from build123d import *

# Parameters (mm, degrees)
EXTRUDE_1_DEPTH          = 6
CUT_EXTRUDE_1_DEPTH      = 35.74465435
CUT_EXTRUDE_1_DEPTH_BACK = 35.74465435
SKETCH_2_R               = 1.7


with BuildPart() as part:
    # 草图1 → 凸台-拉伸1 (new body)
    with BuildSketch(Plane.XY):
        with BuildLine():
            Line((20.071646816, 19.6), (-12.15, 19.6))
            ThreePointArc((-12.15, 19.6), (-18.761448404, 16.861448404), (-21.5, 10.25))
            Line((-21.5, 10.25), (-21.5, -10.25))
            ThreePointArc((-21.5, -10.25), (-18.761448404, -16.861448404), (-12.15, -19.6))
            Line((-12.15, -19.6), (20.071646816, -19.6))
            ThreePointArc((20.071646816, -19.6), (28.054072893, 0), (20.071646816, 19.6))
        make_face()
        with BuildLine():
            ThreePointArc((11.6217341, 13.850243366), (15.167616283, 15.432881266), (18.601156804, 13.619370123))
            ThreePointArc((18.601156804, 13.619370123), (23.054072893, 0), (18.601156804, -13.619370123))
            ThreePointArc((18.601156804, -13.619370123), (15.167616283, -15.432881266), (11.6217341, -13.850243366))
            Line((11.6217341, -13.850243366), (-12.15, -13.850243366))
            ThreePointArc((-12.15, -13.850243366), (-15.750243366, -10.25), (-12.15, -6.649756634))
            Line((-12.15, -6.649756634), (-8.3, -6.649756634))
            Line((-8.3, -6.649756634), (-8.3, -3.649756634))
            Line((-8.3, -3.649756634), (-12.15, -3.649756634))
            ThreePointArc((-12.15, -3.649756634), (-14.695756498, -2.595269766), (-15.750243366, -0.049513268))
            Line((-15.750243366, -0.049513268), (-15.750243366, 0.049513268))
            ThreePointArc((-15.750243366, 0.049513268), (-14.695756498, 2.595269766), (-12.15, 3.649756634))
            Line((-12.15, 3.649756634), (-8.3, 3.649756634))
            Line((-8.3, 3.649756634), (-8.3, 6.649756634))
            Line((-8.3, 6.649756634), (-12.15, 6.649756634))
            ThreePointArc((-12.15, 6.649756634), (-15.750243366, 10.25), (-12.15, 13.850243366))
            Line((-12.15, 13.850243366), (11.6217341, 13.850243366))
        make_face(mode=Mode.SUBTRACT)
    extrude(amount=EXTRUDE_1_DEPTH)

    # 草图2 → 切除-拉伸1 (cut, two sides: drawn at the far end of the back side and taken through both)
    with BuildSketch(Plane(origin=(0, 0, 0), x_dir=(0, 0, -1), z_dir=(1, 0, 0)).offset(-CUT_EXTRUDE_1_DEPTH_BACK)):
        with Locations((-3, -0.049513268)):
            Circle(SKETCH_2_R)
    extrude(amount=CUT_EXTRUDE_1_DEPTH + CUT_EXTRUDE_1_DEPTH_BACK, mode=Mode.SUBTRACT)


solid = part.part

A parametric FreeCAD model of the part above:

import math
import FreeCAD as App
import Part
import Sketcher

V = App.Vector
Q = App.Units.Quantity

doc = App.newDocument("Part")
params = doc.addObject("Spreadsheet::Sheet", "Params")
for row, (alias, value) in enumerate([
    ("sketch1_height", "3 mm"),
    ("sketch1_radius", "9.35 mm"),
    ("sketch1_height2", "20.5 mm"),
    ("sketch1_width", "3.85 mm"),
    ("pad1_length", "6 mm"),
    ("sketch2_diameter", "3.4 mm"),
], start=1):
    params.set(f"A{row}", alias)
    params.set(f"B{row}", "=" + value)
    params.setAlias(f"B{row}", alias)

body = doc.addObject("PartDesign::Body", "Body")

# Sketch on XY plane
sketch1 = doc.addObject("Sketcher::SketchObject", "Sketch")
body.addObject(sketch1)
sketch1.AttachmentSupport = (doc.XY_Plane, [""])
sketch1.MapMode = "FlatFace"
sketch1.addGeometry(Part.LineSegment(V(20.07, 19.6, 0), V(-12.15, 19.6, 0)), False)
sketch1.addGeometry(Part.ArcOfCircle(Part.Circle(V(-12.15, 10.25, 0), V(0, 0, 1), 9.35), math.radians(90), math.radians(180)), False)
sketch1.addGeometry(Part.LineSegment(V(-21.5, 10.25, 0), V(-21.5, -10.25, 0)), False)
sketch1.addGeometry(Part.ArcOfCircle(Part.Circle(V(-12.15, -10.25, 0), V(0, 0, 1), 9.35), math.radians(180), math.radians(270)), False)
sketch1.addGeometry(Part.LineSegment(V(-12.15, -19.6, 0), V(20.07, -19.6, 0)), False)
sketch1.addGeometry(Part.ArcOfCircle(Part.Circle(V(0, 0, 0), V(0, 0, 1), 28.05), math.radians(-44), math.radians(44)), False)
sketch1.addGeometry(Part.LineSegment(V(-12.15, 13.85, 0), V(11.62, 13.85, 0)), False)
sketch1.addGeometry(Part.ArcOfCircle(Part.Circle(V(15.02, 11, 0), V(0, 0, 1), 4.44), math.radians(36), math.radians(140)), False)
sketch1.addGeometry(Part.ArcOfCircle(Part.Circle(V(0, 0, 0), V(0, 0, 1), 23.05), math.radians(-36), math.radians(36)), False)
sketch1.addGeometry(Part.ArcOfCircle(Part.Circle(V(15.02, -11, 0), V(0, 0, 1), 4.44), math.radians(-140), math.radians(-36)), False)
sketch1.addGeometry(Part.LineSegment(V(11.62, -13.85, 0), V(-12.15, -13.85, 0)), False)
sketch1.addGeometry(Part.ArcOfCircle(Part.Circle(V(-12.15, -10.25, 0), V(0, 0, 1), 3.6), math.radians(90), math.radians(270)), False)
sketch1.addGeometry(Part.LineSegment(V(-12.15, -6.65, 0), V(-8.3, -6.65, 0)), False)
sketch1.addGeometry(Part.LineSegment(V(-8.3, -6.65, 0), V(-8.3, -3.65, 0)), False)
sketch1.addGeometry(Part.LineSegment(V(-8.3, -3.65, 0), V(-12.15, -3.65, 0)), False)
sketch1.addGeometry(Part.ArcOfCircle(Part.Circle(V(-12.15, -0.05, 0), V(0, 0, 1), 3.6), math.radians(180), math.radians(270)), False)
sketch1.addGeometry(Part.LineSegment(V(-15.75, -0.05, 0), V(-15.75, 0.05, 0)), False)
sketch1.addGeometry(Part.ArcOfCircle(Part.Circle(V(-12.15, 0.05, 0), V(0, 0, 1), 3.6), math.radians(90), math.radians(180)), False)
sketch1.addGeometry(Part.LineSegment(V(-12.15, 3.65, 0), V(-8.3, 3.65, 0)), False)
sketch1.addGeometry(Part.LineSegment(V(-8.3, 3.65, 0), V(-8.3, 6.65, 0)), False)
sketch1.addGeometry(Part.LineSegment(V(-8.3, 6.65, 0), V(-12.15, 6.65, 0)), False)
sketch1.addGeometry(Part.ArcOfCircle(Part.Circle(V(-12.15, 10.25, 0), V(0, 0, 1), 3.6), math.radians(90), math.radians(270)), False)
sketch1.addConstraint(Sketcher.Constraint("Tangent", 0, 2, 1, 1))
sketch1.addConstraint(Sketcher.Constraint("Tangent", 1, 2, 2, 1))
sketch1.addConstraint(Sketcher.Constraint("Tangent", 2, 2, 3, 1))
sketch1.addConstraint(Sketcher.Constraint("Tangent", 3, 2, 4, 1))
sketch1.addConstraint(Sketcher.Constraint("Coincident", 4, 2, 5, 1))
sketch1.addConstraint(Sketcher.Constraint("Coincident", 5, 2, 0, 1))
sketch1.addConstraint(Sketcher.Constraint("Coincident", 6, 2, 7, 2))
sketch1.addConstraint(Sketcher.Constraint("Tangent", 7, 1, 8, 2))
sketch1.addConstraint(Sketcher.Constraint("Tangent", 8, 1, 9, 2))
sketch1.addConstraint(Sketcher.Constraint("Coincident", 9, 1, 10, 1))
sketch1.addConstraint(Sketcher.Constraint("Tangent", 10, 2, 11, 2))
sketch1.addConstraint(Sketcher.Constraint("Tangent", 11, 1, 12, 1))
sketch1.addConstraint(Sketcher.Constraint("Coincident", 12, 2, 13, 1))
sketch1.addConstraint(Sketcher.Constraint("Coincident", 13, 2, 14, 1))
sketch1.addConstraint(Sketcher.Constraint("Tangent", 14, 2, 15, 2))
sketch1.addConstraint(Sketcher.Constraint("Tangent", 15, 1, 16, 1))
sketch1.addConstraint(Sketcher.Constraint("Tangent", 16, 2, 17, 2))
sketch1.addConstraint(Sketcher.Constraint("Tangent", 17, 1, 18, 1))
sketch1.addConstraint(Sketcher.Constraint("Coincident", 18, 2, 19, 1))
sketch1.addConstraint(Sketcher.Constraint("Coincident", 19, 2, 20, 1))
sketch1.addConstraint(Sketcher.Constraint("Tangent", 20, 2, 21, 2))
sketch1.addConstraint(Sketcher.Constraint("Tangent", 21, 1, 6, 1))
sketch1.addConstraint(Sketcher.Constraint("Horizontal", 0))
sketch1.addConstraint(Sketcher.Constraint("Vertical", 2))
sketch1.addConstraint(Sketcher.Constraint("Horizontal", 4))
sketch1.addConstraint(Sketcher.Constraint("Horizontal", 6))
sketch1.addConstraint(Sketcher.Constraint("Horizontal", 10))
sketch1.addConstraint(Sketcher.Constraint("Horizontal", 12))
sketch1.addConstraint(Sketcher.Constraint("Vertical", 13))
sketch1.addConstraint(Sketcher.Constraint("Horizontal", 14))
sketch1.addConstraint(Sketcher.Constraint("Vertical", 16))
sketch1.addConstraint(Sketcher.Constraint("Horizontal", 18))
sketch1.addConstraint(Sketcher.Constraint("Vertical", 19))
sketch1.addConstraint(Sketcher.Constraint("Horizontal", 20))
sketch1.addConstraint(Sketcher.Constraint("Coincident", 5, 3, -1, 1))
sketch1.addConstraint(Sketcher.Constraint("Coincident", 8, 3, -1, 1))
sketch1.addConstraint(Sketcher.Constraint("Coincident", 11, 3, 3, 3))
sketch1.addConstraint(Sketcher.Constraint("Coincident", 21, 3, 1, 3))
sketch1.addConstraint(Sketcher.Constraint("Equal", 1, 3))
sketch1.addConstraint(Sketcher.Constraint("Equal", 7, 9))
sketch1.addConstraint(Sketcher.Constraint("Equal", 11, 15))
sketch1.addConstraint(Sketcher.Constraint("Equal", 15, 17))
sketch1.addConstraint(Sketcher.Constraint("Equal", 17, 21))
sketch1.addConstraint(Sketcher.Constraint("Symmetric", 6, 2, 9, 1, -1))
sketch1.addConstraint(Sketcher.Constraint("Symmetric", 13, 2, 18, 2, -1))
sketch1.addConstraint(Sketcher.Constraint("Vertical", 11, 3, 15, 3))
sketch1.addConstraint(Sketcher.Constraint("DistanceY", 13, 1, 13, 2, Q("3 mm")))
sketch1.addConstraint(Sketcher.Constraint("Radius", 1, Q("9.35 mm")))
sketch1.addConstraint(Sketcher.Constraint("DistanceY", 2, 2, 2, 1, Q("20.5 mm")))
sketch1.addConstraint(Sketcher.Constraint("DistanceX", 12, 1, 12, 2, Q("3.85 mm")))
sketch1.addConstraint(Sketcher.Constraint("DistanceX", 1, 2, -1, 1, Q("21.5 mm")))
sketch1.addConstraint(Sketcher.Constraint("Radius", 5, Q("28.054073 mm")))
sketch1.addConstraint(Sketcher.Constraint("Radius", 7, Q("4.437314 mm")))
sketch1.addConstraint(Sketcher.Constraint("Radius", 8, Q("23.054073 mm")))
sketch1.addConstraint(Sketcher.Constraint("Radius", 11, Q("3.600243 mm")))
sketch1.addConstraint(Sketcher.Constraint("DistanceX", 6, 1, 6, 2, Q("23.771734 mm")))
sketch1.setExpression("Constraints[46]", "Params.sketch1_height")
sketch1.setExpression("Constraints[47]", "Params.sketch1_radius")
sketch1.setExpression("Constraints[48]", "Params.sketch1_height2")
sketch1.setExpression("Constraints[49]", "Params.sketch1_width")
pad1 = doc.addObject("PartDesign::Pad", "Pad")
body.addObject(pad1)
pad1.Profile = sketch1
pad1.setExpression("Length", "Params.pad1_length")

# Sketch on YZ plane
sketch2 = doc.addObject("Sketcher::SketchObject", "Sketch001")
body.addObject(sketch2)
sketch2.AttachmentSupport = (doc.YZ_Plane, [""])
sketch2.MapMode = "FlatFace"
sketch2.addGeometry(Part.Circle(V(0, 3, 0), V(0, 0, 1), 1.7), False)
sketch2.addConstraint(Sketcher.Constraint("Diameter", 0, Q("3.4 mm")))
sketch2.addConstraint(Sketcher.Constraint("DistanceY", -1, 1, 0, 3, Q("3 mm")))
sketch2.addConstraint(Sketcher.Constraint("DistanceX", 0, 3, -1, 1, Q("0.049513 mm")))
sketch2.setExpression("Constraints[0]", "Params.sketch2_diameter")
pocket1 = doc.addObject("PartDesign::Pocket", "Pocket")
body.addObject(pocket1)
pocket1.Profile = sketch2
pocket1.Type = "ThroughAll"
pocket1.Midplane = True

doc.recompute()
